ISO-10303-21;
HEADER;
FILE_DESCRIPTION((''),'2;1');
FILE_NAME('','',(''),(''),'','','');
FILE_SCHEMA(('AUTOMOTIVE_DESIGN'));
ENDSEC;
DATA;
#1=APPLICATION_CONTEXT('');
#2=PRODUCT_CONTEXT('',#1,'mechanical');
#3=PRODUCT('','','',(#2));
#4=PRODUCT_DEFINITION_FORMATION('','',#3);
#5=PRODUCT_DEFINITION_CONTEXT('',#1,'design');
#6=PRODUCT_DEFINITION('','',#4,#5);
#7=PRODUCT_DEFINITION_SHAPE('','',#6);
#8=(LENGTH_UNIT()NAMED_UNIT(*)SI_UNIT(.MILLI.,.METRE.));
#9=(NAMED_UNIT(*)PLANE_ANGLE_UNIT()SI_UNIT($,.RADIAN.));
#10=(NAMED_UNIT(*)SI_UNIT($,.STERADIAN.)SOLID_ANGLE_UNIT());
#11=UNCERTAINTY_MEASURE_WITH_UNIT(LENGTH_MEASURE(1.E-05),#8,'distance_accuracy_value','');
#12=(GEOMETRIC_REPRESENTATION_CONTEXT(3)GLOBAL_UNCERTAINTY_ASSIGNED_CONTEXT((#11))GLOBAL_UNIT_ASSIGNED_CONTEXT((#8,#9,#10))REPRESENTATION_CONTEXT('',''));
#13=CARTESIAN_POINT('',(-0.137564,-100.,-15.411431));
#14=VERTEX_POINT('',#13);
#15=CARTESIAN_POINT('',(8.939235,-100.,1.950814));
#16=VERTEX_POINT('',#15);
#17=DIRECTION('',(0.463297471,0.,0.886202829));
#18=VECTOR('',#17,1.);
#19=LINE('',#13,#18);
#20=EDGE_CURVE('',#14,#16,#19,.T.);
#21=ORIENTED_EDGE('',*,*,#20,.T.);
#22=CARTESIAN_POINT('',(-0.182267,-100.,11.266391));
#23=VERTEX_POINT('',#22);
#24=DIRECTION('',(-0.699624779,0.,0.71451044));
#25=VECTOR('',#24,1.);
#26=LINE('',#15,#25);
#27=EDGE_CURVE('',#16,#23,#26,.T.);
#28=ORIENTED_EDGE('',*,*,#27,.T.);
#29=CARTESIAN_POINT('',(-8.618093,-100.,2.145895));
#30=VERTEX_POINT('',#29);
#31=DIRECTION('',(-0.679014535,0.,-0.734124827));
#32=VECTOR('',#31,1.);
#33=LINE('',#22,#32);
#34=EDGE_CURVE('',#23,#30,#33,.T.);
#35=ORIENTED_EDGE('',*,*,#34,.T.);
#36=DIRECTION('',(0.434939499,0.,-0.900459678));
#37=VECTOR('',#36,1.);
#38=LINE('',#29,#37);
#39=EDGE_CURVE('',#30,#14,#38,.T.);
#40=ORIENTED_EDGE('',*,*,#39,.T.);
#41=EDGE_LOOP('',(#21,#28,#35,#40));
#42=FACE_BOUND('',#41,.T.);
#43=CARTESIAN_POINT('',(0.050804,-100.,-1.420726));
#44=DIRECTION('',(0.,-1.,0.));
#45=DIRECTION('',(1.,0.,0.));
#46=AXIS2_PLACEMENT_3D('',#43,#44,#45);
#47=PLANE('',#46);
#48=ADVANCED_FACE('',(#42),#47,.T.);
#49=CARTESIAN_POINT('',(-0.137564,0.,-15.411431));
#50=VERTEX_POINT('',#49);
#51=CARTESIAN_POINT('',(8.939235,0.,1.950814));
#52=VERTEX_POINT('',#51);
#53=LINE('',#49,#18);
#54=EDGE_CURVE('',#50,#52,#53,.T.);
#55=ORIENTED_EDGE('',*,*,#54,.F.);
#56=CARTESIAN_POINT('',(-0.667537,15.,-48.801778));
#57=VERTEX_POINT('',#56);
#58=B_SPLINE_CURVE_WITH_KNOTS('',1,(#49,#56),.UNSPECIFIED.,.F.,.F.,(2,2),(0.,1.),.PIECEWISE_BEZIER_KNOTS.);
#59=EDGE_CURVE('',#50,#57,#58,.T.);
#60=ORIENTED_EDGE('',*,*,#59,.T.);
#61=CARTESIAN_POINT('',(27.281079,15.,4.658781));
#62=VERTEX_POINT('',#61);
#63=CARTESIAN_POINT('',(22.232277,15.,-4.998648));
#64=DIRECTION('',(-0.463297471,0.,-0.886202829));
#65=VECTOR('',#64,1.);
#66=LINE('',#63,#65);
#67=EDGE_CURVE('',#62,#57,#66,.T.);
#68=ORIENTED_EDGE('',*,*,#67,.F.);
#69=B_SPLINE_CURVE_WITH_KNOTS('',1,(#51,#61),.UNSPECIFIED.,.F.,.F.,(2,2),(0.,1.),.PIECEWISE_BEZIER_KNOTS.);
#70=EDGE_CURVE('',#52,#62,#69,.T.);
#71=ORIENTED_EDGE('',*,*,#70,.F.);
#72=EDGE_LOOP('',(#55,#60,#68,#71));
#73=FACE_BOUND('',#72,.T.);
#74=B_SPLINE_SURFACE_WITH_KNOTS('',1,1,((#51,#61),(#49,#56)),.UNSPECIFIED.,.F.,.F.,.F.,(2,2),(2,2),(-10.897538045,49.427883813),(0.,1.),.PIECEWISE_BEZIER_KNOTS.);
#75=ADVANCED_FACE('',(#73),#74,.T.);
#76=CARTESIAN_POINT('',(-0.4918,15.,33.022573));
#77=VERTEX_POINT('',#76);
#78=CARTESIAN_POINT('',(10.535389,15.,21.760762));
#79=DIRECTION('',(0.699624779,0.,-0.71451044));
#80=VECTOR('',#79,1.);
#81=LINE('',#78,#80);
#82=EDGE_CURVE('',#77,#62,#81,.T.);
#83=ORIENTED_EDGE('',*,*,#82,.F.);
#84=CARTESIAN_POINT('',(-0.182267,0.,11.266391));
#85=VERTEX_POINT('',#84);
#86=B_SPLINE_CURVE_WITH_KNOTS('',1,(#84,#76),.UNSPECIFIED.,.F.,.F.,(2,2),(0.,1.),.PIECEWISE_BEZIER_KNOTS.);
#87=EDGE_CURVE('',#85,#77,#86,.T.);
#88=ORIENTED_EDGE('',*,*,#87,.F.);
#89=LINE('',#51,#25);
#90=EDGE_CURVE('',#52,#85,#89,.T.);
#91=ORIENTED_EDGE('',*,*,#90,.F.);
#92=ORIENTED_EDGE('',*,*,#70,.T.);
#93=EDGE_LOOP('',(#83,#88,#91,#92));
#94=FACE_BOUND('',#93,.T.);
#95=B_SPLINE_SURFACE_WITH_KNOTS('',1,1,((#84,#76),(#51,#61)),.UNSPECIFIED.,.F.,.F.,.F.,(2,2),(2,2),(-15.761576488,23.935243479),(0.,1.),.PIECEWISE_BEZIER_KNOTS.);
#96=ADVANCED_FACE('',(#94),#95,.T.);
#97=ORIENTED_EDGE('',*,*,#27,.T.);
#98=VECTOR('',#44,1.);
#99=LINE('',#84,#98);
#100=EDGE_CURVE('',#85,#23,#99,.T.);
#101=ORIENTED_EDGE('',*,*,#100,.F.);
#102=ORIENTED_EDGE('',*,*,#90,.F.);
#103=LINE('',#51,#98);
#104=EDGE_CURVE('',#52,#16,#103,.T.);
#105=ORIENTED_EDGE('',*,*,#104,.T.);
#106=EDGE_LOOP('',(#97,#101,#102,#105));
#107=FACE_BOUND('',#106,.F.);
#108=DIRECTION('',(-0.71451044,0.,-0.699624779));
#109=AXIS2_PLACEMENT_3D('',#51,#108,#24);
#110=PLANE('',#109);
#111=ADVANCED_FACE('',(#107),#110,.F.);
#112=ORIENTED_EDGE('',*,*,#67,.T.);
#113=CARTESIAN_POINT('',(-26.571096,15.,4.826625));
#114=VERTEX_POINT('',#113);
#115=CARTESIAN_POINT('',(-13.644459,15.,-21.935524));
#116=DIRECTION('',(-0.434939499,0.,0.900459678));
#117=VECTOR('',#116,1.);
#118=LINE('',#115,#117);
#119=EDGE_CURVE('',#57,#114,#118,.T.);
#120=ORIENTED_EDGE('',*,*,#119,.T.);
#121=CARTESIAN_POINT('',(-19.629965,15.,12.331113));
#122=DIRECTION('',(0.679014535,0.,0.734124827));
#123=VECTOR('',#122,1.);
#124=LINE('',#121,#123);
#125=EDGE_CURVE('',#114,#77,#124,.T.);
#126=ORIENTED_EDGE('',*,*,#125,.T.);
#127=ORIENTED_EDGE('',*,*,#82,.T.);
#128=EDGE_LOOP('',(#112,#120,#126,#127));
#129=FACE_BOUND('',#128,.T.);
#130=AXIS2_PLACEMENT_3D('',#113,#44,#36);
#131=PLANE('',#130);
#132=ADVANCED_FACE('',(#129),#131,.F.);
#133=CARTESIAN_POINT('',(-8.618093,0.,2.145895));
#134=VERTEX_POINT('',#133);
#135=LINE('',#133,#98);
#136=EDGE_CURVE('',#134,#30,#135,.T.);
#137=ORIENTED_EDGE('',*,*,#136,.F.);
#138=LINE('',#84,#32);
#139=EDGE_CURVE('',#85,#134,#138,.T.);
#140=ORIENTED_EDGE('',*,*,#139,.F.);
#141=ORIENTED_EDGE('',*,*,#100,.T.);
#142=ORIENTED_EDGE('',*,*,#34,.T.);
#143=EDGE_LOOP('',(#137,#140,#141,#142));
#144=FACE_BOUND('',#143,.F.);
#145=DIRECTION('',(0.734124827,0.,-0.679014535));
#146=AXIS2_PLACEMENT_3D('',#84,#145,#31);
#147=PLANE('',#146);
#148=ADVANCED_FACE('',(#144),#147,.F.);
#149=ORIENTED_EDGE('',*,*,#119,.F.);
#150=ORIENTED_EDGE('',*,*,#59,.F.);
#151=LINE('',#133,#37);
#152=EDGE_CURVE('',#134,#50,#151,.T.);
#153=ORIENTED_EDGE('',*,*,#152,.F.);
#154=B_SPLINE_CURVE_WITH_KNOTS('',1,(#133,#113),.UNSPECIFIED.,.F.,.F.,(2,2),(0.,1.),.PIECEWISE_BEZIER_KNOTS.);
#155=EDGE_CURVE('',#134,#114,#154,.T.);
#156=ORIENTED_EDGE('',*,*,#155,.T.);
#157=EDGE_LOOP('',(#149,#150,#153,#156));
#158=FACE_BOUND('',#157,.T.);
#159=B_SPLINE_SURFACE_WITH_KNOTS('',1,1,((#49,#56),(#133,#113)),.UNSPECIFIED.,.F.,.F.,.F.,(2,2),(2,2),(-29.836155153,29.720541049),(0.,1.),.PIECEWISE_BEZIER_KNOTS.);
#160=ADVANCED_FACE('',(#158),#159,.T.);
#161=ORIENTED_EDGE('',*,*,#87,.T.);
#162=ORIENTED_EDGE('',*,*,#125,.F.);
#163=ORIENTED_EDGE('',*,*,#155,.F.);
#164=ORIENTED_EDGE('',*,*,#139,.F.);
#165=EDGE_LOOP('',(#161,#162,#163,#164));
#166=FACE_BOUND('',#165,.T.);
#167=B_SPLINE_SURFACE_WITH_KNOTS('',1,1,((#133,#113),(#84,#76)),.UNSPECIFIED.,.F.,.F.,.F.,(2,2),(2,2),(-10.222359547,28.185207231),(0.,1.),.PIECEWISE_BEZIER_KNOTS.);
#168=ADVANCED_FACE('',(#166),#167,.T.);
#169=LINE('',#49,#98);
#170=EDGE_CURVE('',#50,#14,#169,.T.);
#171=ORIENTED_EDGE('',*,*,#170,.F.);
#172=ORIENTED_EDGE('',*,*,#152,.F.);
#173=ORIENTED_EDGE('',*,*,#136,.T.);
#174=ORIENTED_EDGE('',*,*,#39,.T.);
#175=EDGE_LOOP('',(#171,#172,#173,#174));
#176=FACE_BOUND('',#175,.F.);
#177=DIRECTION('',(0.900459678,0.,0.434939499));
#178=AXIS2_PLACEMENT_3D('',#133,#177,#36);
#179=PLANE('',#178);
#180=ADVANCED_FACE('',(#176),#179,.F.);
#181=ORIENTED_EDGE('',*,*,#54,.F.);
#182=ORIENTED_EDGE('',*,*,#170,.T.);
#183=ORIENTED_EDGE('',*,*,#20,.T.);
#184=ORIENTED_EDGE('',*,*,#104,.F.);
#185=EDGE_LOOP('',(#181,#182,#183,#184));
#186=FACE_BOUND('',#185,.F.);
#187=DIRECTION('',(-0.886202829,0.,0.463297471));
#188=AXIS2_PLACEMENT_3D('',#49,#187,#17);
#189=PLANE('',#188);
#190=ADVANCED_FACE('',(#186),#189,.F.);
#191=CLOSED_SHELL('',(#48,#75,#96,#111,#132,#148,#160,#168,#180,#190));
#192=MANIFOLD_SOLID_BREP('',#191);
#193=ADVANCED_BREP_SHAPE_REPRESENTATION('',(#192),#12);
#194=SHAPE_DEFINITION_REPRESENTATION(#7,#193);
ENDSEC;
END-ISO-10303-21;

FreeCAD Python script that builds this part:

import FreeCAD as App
import Part
import Sketcher
from FreeCAD import Vector
Q = App.Units.Quantity


def add_polygon(sketch, points):
    """Adds a closed chain of lines whose ends are joined by coincident constraints."""
    first, n = sketch.GeometryCount, len(points)
    for a, b in zip(points, points[1:] + points[:1]):
        sketch.addGeometry(Part.LineSegment(App.Vector(*a, 0), App.Vector(*b, 0)), False)
    for i in range(n):
        sketch.addConstraint(Sketcher.Constraint("Coincident", first + i, 2, first + (i + 1) % n, 1))

doc = App.newDocument("Part")
body = doc.addObject("PartDesign::Body", "Body")

sketch1 = body.newObject("Sketcher::SketchObject", "Sketch")
sketch1.AttachmentSupport = (doc.getObject("XZ_Plane"), [""])
sketch1.MapMode = "FlatFace"
add_polygon(sketch1, [(0, 11), (-9, 2), (0, -15), (9, 2)])
sketch1.addConstraint(Sketcher.Constraint("DistanceX", 1, 2, 2, 2, Q("9.076798 mm")))
sketch1.addConstraint(Sketcher.Constraint("DistanceX", 3, 2, 2, 2, Q("9.121502 mm")))
sketch1.addConstraint(Sketcher.Constraint("Distance", 0, Q("12.423631 mm")))
sketch1.addConstraint(Sketcher.Constraint("Distance", 1, Q("19.498182 mm")))
sketch1.addConstraint(Sketcher.Constraint("Distance", 2, Q("19.591729 mm")))
sketch1.addConstraint(Sketcher.Constraint("DistanceY", 1, 2, -1, 1, Q("15.411431 mm")))
sketch1.addConstraint(Sketcher.Constraint("DistanceY", -1, 1, 3, 2, Q("11.266391 mm")))
sketch1.addConstraint(Sketcher.Constraint("DistanceX", 0, 2, -1, 1, Q("8.618093 mm")))
pad1 = body.newObject("PartDesign::Pad", "Pad")
pad1.Profile = sketch1
pad1.Length = 100

sketch2 = body.newObject("Sketcher::SketchObject", "Sketch001")
sketch2.AttachmentSupport = (doc.getObject("XZ_Plane"), [""])
sketch2.MapMode = "FlatFace"
add_polygon(sketch2, [(-9, 2), (0, 11), (9, 2), (0, -15)])
sketch2.addConstraint(Sketcher.Constraint("DistanceX", 0, 2, 1, 2, Q("9.121502 mm")))
sketch2.addConstraint(Sketcher.Constraint("DistanceX", 2, 2, 1, 2, Q("9.076798 mm")))
sketch2.addConstraint(Sketcher.Constraint("Distance", 0, Q("12.423631 mm")))
sketch2.addConstraint(Sketcher.Constraint("Distance", 2, Q("19.591729 mm")))
sketch2.addConstraint(Sketcher.Constraint("Distance", 3, Q("19.498182 mm")))
sketch2.addConstraint(Sketcher.Constraint("DistanceY", -1, 1, 0, 2, Q("11.266391 mm")))
sketch2.addConstraint(Sketcher.Constraint("DistanceY", 2, 2, -1, 1, Q("15.411431 mm")))
sketch2.addConstraint(Sketcher.Constraint("DistanceX", 0, 2, -1, 1, Q("0.182267 mm")))
pad2 = body.newObject("PartDesign::Pad", "Pad001")
pad2.Profile = sketch2
pad2.Length = 15
pad2.Reversed = True
pad2.TaperAngle = 45

doc.recompute()
